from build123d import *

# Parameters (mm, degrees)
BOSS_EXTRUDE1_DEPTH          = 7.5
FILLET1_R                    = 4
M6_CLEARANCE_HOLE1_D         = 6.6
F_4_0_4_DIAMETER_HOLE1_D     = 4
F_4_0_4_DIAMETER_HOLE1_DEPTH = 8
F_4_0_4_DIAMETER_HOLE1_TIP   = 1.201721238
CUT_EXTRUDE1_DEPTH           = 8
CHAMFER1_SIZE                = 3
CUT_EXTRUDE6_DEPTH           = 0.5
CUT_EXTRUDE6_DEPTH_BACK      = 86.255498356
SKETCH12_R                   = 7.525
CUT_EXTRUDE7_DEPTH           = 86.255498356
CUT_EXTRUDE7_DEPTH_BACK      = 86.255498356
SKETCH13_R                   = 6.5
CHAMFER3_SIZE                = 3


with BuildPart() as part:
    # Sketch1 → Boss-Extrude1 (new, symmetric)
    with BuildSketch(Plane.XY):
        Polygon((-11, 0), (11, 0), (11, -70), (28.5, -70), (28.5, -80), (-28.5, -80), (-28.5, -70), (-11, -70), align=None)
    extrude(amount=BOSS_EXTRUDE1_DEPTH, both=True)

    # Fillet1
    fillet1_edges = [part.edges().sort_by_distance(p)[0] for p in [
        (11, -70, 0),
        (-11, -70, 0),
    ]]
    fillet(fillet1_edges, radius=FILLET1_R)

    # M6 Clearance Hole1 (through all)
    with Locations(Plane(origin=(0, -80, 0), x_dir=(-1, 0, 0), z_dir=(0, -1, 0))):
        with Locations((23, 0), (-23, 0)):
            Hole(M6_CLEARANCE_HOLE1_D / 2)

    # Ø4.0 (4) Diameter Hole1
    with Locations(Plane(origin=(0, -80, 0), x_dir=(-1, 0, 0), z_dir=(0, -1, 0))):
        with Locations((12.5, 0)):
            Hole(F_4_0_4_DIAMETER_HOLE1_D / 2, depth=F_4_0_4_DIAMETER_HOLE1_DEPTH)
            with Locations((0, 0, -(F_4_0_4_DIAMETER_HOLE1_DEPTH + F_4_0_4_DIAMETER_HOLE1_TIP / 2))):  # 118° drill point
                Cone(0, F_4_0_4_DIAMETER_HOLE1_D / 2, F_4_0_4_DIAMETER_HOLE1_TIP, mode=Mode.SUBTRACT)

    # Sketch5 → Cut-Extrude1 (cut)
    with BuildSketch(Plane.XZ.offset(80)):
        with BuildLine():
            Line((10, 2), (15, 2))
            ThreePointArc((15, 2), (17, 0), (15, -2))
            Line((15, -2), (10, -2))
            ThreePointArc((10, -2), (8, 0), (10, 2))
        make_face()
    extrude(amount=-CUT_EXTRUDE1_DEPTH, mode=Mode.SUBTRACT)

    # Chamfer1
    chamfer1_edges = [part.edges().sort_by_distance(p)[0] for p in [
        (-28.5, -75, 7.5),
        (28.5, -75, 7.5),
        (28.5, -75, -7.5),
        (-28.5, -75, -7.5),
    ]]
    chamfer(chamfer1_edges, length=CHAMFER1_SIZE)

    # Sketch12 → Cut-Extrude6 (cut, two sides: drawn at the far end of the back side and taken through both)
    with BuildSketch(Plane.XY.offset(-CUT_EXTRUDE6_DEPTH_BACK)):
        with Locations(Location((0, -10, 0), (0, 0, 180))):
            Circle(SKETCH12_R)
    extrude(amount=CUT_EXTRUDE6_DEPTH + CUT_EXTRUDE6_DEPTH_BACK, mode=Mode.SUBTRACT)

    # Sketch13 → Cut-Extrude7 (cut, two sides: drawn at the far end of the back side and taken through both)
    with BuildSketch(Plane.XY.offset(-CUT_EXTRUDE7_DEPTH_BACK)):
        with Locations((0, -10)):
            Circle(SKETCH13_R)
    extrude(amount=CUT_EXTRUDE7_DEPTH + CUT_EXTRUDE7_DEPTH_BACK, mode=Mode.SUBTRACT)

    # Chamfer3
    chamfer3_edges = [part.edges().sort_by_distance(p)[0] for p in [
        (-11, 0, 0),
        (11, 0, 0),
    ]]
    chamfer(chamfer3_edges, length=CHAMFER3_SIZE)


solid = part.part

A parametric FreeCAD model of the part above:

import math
import FreeCAD as App
import Part
import Sketcher


def edges_at(feature, points):
    """Names of the edges that pass closest to the given points."""
    edges = feature.Shape.Edges
    near = lambda p: min(range(len(edges)), key=lambda i: edges[i].distToShape(Part.Vertex(*p))[0])
    return sorted({f"Edge{near(p) + 1}" for p in points})

doc = App.newDocument("Part")
body = doc.addObject("PartDesign::Body", "Body")

sketch1 = doc.addObject("Sketcher::SketchObject", "Sketch")
body.addObject(sketch1)
sketch1.AttachmentSupport = (doc.XY_Plane, [""])
sketch1.MapMode = "FlatFace"
sketch1.addGeometry([
    Part.LineSegment(App.Vector(11, 0, 0), App.Vector(-11, 0, 0)),
    Part.LineSegment(App.Vector(-11, 0, 0), App.Vector(-11, -70, 0)),
    Part.LineSegment(App.Vector(-11, -70, 0), App.Vector(-28, -70, 0)),
    Part.LineSegment(App.Vector(-28, -70, 0), App.Vector(-28, -80, 0)),
    Part.LineSegment(App.Vector(-28, -80, 0), App.Vector(28, -80, 0)),
    Part.LineSegment(App.Vector(28, -80, 0), App.Vector(28, -70, 0)),
    Part.LineSegment(App.Vector(28, -70, 0), App.Vector(11, -70, 0)),
    Part.LineSegment(App.Vector(11, -70, 0), App.Vector(11, 0, 0)),
], False)
sketch1.addConstraint([
    Sketcher.Constraint("Coincident", 0, 2, 1, 1),
    Sketcher.Constraint("Coincident", 1, 2, 2, 1),
    Sketcher.Constraint("Coincident", 2, 2, 3, 1),
    Sketcher.Constraint("Coincident", 3, 2, 4, 1),
    Sketcher.Constraint("Coincident", 4, 2, 5, 1),
    Sketcher.Constraint("Coincident", 5, 2, 6, 1),
    Sketcher.Constraint("Coincident", 6, 2, 7, 1),
    Sketcher.Constraint("Coincident", 7, 2, 0, 1),
    Sketcher.Constraint("Horizontal", 0),
    Sketcher.Constraint("Vertical", 1),
    Sketcher.Constraint("Horizontal", 2),
    Sketcher.Constraint("Vertical", 3),
    Sketcher.Constraint("Horizontal", 4),
    Sketcher.Constraint("Vertical", 5),
    Sketcher.Constraint("Horizontal", 6),
    Sketcher.Constraint("Vertical", 7),
    Sketcher.Constraint("Symmetric", 0, 2, 7, 2, -1, 1),
    Sketcher.Constraint("Symmetric", 2, 2, 5, 2, -2),
    Sketcher.Constraint("DistanceX", 0, 2, 0, 1, 22.0),
    Sketcher.Constraint("DistanceX", 4, 1, 4, 2, 57.0),
    Sketcher.Constraint("DistanceY", 1, 2, 1, 1, 70.0),
    Sketcher.Constraint("DistanceY", 3, 2, 3, 1, 10.0),
])
pad1 = doc.addObject("PartDesign::Pad", "Pad")
body.addObject(pad1)
pad1.Profile = sketch1
pad1.Length = 15
pad1.Midplane = True
doc.recompute()

fillet = doc.addObject("PartDesign::Fillet", "Fillet")
body.addObject(fillet)
fillet.Base = (pad1, edges_at(pad1, [(11, -70, 0), (-11, -70, 0)]))
fillet.Radius = 4

sketch2 = doc.addObject("Sketcher::SketchObject", "Sketch001")
body.addObject(sketch2)
sketch2.AttachmentSupport = (doc.XZ_Plane, [""])
sketch2.MapMode = "FlatFace"
sketch2.AttachmentOffset = App.Placement(App.Vector(0, 0, 80), App.Rotation())
sketch2.addGeometry([
    Part.Circle(App.Vector(-23, 0, 0), App.Vector(0, 0, 1), 3.3),
    Part.Circle(App.Vector(23, 0, 0), App.Vector(0, 0, 1), 3.3),
], False)
sketch2.addConstraint([
    Sketcher.Constraint("Equal", 0, 1),
    Sketcher.Constraint("Symmetric", 0, 3, 1, 3, -1, 1),
    Sketcher.Constraint("PointOnObject", 0, 3, -1),
    Sketcher.Constraint("Diameter", 0, 6.6),
    Sketcher.Constraint("DistanceX", 0, 3, -1, 1, 23.0),
])
doc.recompute()
hole = doc.addObject("PartDesign::Hole", "Hole")
body.addObject(hole)
hole.Profile = sketch2
hole.ThreadType = "None"
hole.Diameter = 6.6
hole.DepthType = "ThroughAll"

sketch3 = doc.addObject("Sketcher::SketchObject", "Sketch002")
body.addObject(sketch3)
sketch3.AttachmentSupport = (doc.XZ_Plane, [""])
sketch3.MapMode = "FlatFace"
sketch3.AttachmentOffset = App.Placement(App.Vector(0, 0, 80), App.Rotation())
sketch3.addGeometry(Part.Circle(App.Vector(-12.5, 0, 0), App.Vector(0, 0, 1), 2), False)
sketch3.addConstraint([
    Sketcher.Constraint("PointOnObject", 0, 3, -1),
    Sketcher.Constraint("Diameter", 0, 4.0),
    Sketcher.Constraint("DistanceX", 0, 3, -1, 1, 12.5),
])
doc.recompute()
hole2 = doc.addObject("PartDesign::Hole", "Hole001")
body.addObject(hole2)
hole2.Profile = sketch3
hole2.ThreadType = "None"
hole2.Diameter = 4
hole2.DepthType = "Dimension"
hole2.Depth = 8
hole2.DrillPoint = "Angled"
hole2.DrillPointAngle = 118

sketch4 = doc.addObject("Sketcher::SketchObject", "Sketch003")
body.addObject(sketch4)
sketch4.AttachmentSupport = (doc.XZ_Plane, [""])
sketch4.MapMode = "FlatFace"
sketch4.AttachmentOffset = App.Placement(App.Vector(0, 0, 80), App.Rotation())
sketch4.addGeometry([
    Part.LineSegment(App.Vector(15, 2, 0), App.Vector(10, 2, 0)),
    Part.ArcOfCircle(Part.Circle(App.Vector(10, 0, 0), App.Vector(0, 0, 1), 2), math.radians(90), math.radians(270)),
    Part.LineSegment(App.Vector(10, -2, 0), App.Vector(15, -2, 0)),
    Part.ArcOfCircle(Part.Circle(App.Vector(15, 0, 0), App.Vector(0, 0, 1), 2), math.radians(-90), math.radians(90)),
], False)
sketch4.addConstraint([
    Sketcher.Constraint("Tangent", 0, 2, 1, 1),
    Sketcher.Constraint("Tangent", 1, 2, 2, 1),
    Sketcher.Constraint("Tangent", 2, 2, 3, 1),
    Sketcher.Constraint("Tangent", 3, 2, 0, 1),
    Sketcher.Constraint("Horizontal", 0),
    Sketcher.Constraint("Horizontal", 2),
    Sketcher.Constraint("PointOnObject", 1, 3, -1),
    Sketcher.Constraint("Radius", 1, 2.0),
    Sketcher.Constraint("DistanceX", 0, 2, 0, 1, 5.0),
    Sketcher.Constraint("DistanceX", -1, 1, 1, 3, 10.0),
])
pocket1 = doc.addObject("PartDesign::Pocket", "Pocket")
body.addObject(pocket1)
pocket1.Profile = sketch4
pocket1.Length = 8
doc.recompute()

chamfer = doc.addObject("PartDesign::Chamfer", "Chamfer")
body.addObject(chamfer)
chamfer.Base = (pocket1, edges_at(pocket1, [
    (-28.5, -75, 7.5),
    (28.5, -75, 7.5),
    (28.5, -75, -7.5),
    (-28.5, -75, -7.5),
]))
chamfer.Size = 3

sketch5 = doc.addObject("Sketcher::SketchObject", "Sketch004")
body.addObject(sketch5)
sketch5.AttachmentSupport = (doc.XY_Plane, [""])
sketch5.MapMode = "FlatFace"
sketch5.addGeometry(Part.Circle(App.Vector(0, -10, 0), App.Vector(0, 0, 1), 8), False)
sketch5.addConstraint([
    Sketcher.Constraint("PointOnObject", 0, 3, -2),
    Sketcher.Constraint("Diameter", 0, 15.05),
    Sketcher.Constraint("DistanceY", 0, 3, -1, 1, 10.0),
])
pocket2 = doc.addObject("PartDesign::Pocket", "Pocket001")
body.addObject(pocket2)
pocket2.Profile = sketch5
pocket2.Type = "TwoLengths"
pocket2.Length = 0.5
pocket2.Length2 = 86.255498
pocket2.Reversed = True

sketch6 = doc.addObject("Sketcher::SketchObject", "Sketch005")
body.addObject(sketch6)
sketch6.AttachmentSupport = (doc.XY_Plane, [""])
sketch6.MapMode = "FlatFace"
sketch6.addGeometry(Part.Circle(App.Vector(0, -10, 0), App.Vector(0, 0, 1), 6), False)
sketch6.addConstraint([
    Sketcher.Constraint("PointOnObject", 0, 3, -2),
    Sketcher.Constraint("Diameter", 0, 13.0),
    Sketcher.Constraint("DistanceY", 0, 3, -1, 1, 10.0),
])
pocket3 = doc.addObject("PartDesign::Pocket", "Pocket002")
body.addObject(pocket3)
pocket3.Profile = sketch6
pocket3.Type = "ThroughAll"
pocket3.Midplane = True
doc.recompute()

chamfer2 = doc.addObject("PartDesign::Chamfer", "Chamfer001")
body.addObject(chamfer2)
chamfer2.Base = (pocket3, edges_at(pocket3, [(-11, 0, 0), (11, 0, 0)]))
chamfer2.Size = 3

doc.recompute()
